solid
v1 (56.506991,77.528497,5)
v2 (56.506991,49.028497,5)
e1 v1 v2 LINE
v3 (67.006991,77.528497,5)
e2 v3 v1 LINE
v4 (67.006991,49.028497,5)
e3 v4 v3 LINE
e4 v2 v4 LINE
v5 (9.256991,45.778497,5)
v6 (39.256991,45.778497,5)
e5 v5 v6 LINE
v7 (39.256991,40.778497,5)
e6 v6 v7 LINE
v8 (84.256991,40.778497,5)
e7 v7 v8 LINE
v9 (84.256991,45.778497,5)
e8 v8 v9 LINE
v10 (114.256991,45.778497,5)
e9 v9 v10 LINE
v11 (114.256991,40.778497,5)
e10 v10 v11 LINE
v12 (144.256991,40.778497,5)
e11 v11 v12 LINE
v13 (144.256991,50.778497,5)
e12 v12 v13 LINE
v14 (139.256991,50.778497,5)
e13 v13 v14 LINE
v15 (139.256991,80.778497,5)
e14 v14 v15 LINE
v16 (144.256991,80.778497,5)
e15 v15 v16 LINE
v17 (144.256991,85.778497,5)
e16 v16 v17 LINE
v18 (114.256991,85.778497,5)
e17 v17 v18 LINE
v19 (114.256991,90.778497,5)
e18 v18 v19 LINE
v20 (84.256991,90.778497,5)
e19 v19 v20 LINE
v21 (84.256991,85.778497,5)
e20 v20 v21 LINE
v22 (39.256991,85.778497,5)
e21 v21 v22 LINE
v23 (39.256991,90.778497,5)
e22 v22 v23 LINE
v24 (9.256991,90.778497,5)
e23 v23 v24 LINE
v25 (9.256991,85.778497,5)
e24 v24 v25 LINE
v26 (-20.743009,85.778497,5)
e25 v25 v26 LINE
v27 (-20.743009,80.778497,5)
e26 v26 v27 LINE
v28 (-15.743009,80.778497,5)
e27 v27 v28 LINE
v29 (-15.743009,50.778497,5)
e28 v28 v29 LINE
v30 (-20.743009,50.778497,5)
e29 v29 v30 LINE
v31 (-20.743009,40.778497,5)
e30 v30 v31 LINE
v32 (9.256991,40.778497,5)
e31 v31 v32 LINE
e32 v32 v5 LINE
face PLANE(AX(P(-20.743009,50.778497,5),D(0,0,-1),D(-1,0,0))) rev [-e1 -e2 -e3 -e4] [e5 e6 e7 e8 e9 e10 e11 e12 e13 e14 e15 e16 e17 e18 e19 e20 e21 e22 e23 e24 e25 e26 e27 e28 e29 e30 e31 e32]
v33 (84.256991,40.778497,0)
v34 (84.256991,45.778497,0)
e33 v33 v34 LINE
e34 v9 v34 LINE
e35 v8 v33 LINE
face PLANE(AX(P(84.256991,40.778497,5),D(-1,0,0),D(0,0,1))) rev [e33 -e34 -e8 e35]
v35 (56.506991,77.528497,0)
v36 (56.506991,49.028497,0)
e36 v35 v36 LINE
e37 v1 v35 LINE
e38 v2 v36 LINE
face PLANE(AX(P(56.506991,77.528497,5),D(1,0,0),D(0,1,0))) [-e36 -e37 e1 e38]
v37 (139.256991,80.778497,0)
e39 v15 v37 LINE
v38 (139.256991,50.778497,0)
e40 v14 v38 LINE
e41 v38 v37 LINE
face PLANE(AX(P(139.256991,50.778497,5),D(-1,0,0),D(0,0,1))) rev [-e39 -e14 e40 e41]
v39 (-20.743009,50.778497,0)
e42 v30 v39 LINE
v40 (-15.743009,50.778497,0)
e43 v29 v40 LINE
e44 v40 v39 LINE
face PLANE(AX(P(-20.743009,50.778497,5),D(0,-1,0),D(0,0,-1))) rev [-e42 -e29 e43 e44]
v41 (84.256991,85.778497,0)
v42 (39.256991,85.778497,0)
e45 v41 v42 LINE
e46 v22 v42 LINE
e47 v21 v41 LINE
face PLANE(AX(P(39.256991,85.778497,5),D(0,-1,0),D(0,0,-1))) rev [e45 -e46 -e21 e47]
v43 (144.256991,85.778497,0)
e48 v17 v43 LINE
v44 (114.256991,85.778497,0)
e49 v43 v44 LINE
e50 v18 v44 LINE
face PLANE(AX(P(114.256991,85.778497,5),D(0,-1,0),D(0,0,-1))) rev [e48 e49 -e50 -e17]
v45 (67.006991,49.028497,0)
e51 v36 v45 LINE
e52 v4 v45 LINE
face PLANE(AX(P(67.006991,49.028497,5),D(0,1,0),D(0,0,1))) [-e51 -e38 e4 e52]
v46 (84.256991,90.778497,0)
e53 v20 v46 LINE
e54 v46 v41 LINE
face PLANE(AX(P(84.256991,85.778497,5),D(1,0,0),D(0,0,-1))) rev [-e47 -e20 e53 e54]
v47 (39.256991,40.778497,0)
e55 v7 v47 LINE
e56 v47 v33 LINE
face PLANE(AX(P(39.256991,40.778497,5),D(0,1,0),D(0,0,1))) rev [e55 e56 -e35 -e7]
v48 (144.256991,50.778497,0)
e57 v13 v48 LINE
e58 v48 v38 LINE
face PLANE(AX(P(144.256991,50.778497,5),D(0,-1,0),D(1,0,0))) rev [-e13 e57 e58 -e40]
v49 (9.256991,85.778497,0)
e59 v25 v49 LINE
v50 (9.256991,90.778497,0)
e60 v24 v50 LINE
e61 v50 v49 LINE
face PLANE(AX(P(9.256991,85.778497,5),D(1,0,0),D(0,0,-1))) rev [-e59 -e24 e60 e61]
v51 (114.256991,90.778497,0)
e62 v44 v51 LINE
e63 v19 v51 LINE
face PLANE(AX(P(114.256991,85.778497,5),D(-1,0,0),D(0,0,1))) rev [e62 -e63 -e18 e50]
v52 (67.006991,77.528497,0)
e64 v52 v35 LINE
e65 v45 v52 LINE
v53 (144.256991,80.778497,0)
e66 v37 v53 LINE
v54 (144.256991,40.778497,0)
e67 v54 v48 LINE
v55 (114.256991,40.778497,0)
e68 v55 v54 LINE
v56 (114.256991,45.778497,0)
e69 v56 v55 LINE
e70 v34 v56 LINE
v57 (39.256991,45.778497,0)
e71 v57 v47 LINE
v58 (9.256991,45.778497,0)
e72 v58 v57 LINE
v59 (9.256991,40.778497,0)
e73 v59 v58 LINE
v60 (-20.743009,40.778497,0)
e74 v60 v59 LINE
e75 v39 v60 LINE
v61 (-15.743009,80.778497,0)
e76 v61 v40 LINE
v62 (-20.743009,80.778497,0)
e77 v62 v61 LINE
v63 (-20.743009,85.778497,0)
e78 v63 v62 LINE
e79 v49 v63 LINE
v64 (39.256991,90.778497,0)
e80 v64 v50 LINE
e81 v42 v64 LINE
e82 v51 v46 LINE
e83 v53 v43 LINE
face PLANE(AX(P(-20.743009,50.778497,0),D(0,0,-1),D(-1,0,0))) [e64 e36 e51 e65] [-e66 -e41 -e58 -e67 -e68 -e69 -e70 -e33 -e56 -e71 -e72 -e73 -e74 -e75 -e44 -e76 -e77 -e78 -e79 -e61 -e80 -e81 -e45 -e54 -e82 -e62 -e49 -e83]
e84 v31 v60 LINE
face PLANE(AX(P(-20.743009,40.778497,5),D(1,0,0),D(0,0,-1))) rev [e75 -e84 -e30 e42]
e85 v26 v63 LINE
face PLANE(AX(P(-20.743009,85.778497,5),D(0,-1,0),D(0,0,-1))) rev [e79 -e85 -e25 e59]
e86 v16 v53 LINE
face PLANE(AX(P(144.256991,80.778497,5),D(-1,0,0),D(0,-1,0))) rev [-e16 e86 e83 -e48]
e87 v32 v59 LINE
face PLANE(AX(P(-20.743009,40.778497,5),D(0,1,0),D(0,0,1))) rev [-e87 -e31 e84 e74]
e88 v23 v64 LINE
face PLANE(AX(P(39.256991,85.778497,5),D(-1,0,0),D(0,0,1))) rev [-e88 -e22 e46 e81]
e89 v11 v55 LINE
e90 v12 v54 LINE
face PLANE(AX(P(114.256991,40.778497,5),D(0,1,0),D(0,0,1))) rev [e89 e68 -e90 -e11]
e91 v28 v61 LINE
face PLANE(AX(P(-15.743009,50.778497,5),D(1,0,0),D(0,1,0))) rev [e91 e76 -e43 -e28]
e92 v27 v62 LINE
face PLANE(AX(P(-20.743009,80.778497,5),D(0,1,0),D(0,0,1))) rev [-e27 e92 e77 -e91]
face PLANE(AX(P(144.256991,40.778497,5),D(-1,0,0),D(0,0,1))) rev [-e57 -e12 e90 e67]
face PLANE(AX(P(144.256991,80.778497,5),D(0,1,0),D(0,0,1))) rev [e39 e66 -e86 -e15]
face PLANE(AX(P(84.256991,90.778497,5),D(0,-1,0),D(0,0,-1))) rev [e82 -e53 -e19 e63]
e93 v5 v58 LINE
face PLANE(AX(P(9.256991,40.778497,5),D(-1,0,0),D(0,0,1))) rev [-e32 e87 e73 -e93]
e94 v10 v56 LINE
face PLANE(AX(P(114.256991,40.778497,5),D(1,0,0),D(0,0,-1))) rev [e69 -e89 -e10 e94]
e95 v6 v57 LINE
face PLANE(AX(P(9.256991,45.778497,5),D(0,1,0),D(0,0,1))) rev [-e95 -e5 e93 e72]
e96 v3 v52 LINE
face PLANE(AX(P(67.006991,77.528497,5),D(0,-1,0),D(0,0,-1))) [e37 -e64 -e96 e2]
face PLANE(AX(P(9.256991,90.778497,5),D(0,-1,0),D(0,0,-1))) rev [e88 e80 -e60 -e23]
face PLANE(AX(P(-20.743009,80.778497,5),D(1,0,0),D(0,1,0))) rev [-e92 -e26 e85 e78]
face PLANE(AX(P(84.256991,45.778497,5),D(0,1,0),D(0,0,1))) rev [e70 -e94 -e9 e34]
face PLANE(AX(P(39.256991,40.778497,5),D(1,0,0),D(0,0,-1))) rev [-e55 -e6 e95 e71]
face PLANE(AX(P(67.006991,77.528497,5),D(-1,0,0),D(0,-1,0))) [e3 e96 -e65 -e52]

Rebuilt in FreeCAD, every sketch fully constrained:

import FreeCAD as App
import Part
import Sketcher
Q = App.Units.Quantity


def add_polygon(sketch, points):
    """Adds a closed chain of lines whose ends are joined by coincident constraints."""
    first, n = sketch.GeometryCount, len(points)
    for a, b in zip(points, points[1:] + points[:1]):
        sketch.addGeometry(Part.LineSegment(App.Vector(*a, 0), App.Vector(*b, 0)), False)
    for i in range(n):
        sketch.addConstraint(Sketcher.Constraint("Coincident", first + i, 2, first + (i + 1) % n, 1))

doc = App.newDocument("Part")
params = doc.addObject("Spreadsheet::Sheet", "Params")
for row, (alias, value) in enumerate([
    ("sketch1_width", "30 mm"),
    ("sketch1_width2", "45 mm"),
    ("sketch1_width3", "5 mm"),
    ("sketch1_height", "10 mm"),
    ("sketch1_width4", "10.5 mm"),
    ("pad1_length", "5 mm"),
], start=1):
    params.set(f"A{row}", alias)
    params.set(f"B{row}", "=" + value)
    params.setAlias(f"B{row}", alias)

body = doc.addObject("PartDesign::Body", "Body")

# Sketch on XY plane
sketch1 = body.newObject("Sketcher::SketchObject", "Sketch")
sketch1.AttachmentSupport = (doc.getObject("XY_Plane"), [""])
sketch1.MapMode = "FlatFace"
add_polygon(sketch1, [(144, 81), (144, 86), (114, 86), (114, 91), (84, 91), (84, 86), (39, 86), (39, 91), (9, 91), (9, 86), (-21, 86), (-21, 81), (-16, 81), (-16, 51), (-21, 51), (-21, 41), (9, 41), (9, 46), (39, 46), (39, 41), (84, 41), (84, 46), (114, 46), (114, 41), (144, 41), (144, 51), (139, 51), (139, 81)])  # lines 0-27
add_polygon(sketch1, [(67, 49), (57, 49), (57, 78), (67, 78)])  # lines 28-31
sketch1.addConstraint([
    Sketcher.Constraint("Vertical", 0),
    Sketcher.Constraint("Horizontal", 1),
    Sketcher.Constraint("Vertical", 2),
    Sketcher.Constraint("Horizontal", 3),
    Sketcher.Constraint("Vertical", 4),
    Sketcher.Constraint("Horizontal", 5),
    Sketcher.Constraint("Vertical", 6),
    Sketcher.Constraint("Horizontal", 7),
    Sketcher.Constraint("Vertical", 8),
    Sketcher.Constraint("Horizontal", 9),
    Sketcher.Constraint("Vertical", 10),
    Sketcher.Constraint("Horizontal", 11),
    Sketcher.Constraint("Vertical", 12),
    Sketcher.Constraint("Horizontal", 13),
    Sketcher.Constraint("Vertical", 14),
    Sketcher.Constraint("Horizontal", 15),
    Sketcher.Constraint("Vertical", 16),
    Sketcher.Constraint("Horizontal", 17),
    Sketcher.Constraint("Vertical", 18),
    Sketcher.Constraint("Horizontal", 19),
    Sketcher.Constraint("Vertical", 20),
    Sketcher.Constraint("Horizontal", 21),
    Sketcher.Constraint("Vertical", 22),
    Sketcher.Constraint("Horizontal", 23),
    Sketcher.Constraint("Vertical", 24),
    Sketcher.Constraint("Horizontal", 25),
    Sketcher.Constraint("Vertical", 26),
    Sketcher.Constraint("Horizontal", 27),
    Sketcher.Constraint("Horizontal", 28),
    Sketcher.Constraint("Vertical", 29),
    Sketcher.Constraint("Horizontal", 30),
    Sketcher.Constraint("Vertical", 31),
    Sketcher.Constraint("Horizontal", 1, 2, 4, 2),
    Sketcher.Constraint("Horizontal", 3, 2, 6, 2),
    Sketcher.Constraint("Horizontal", 5, 2, 8, 2),
    Sketcher.Constraint("Horizontal", 15, 2, 18, 2),
    Sketcher.Constraint("Horizontal", 17, 2, 20, 2),
    Sketcher.Constraint("Horizontal", 19, 2, 22, 2),
    Sketcher.Constraint("Horizontal", 13, 2, 24, 2),
    Sketcher.Constraint("Horizontal", 11, 2, 26, 2),
    Sketcher.Constraint("Vertical", 10, 2, 13, 2),
    Sketcher.Constraint("Vertical", 8, 2, 15, 2),
    Sketcher.Constraint("Vertical", 6, 2, 17, 2),
    Sketcher.Constraint("Vertical", 4, 2, 19, 2),
    Sketcher.Constraint("Vertical", 2, 2, 21, 2),
    Sketcher.Constraint("Vertical", 0, 2, 23, 2),
    Sketcher.Constraint("Equal", 1, 3),
    Sketcher.Constraint("Equal", 3, 7),
    Sketcher.Constraint("Equal", 7, 9),
    Sketcher.Constraint("Equal", 13, 25),
    Sketcher.Constraint("Equal", 27, 0),
    Sketcher.Constraint("Equal", 0, 2),
    Sketcher.Constraint("Equal", 23, 12),
    Sketcher.Constraint("Equal", 10, 16),
    Sketcher.Constraint("DistanceX", 1, 2, 1, 1, Q("30 mm")),
    Sketcher.Constraint("DistanceX", 5, 2, 5, 1, Q("45 mm")),
    Sketcher.Constraint("DistanceX", 11, 1, 11, 2, Q("5 mm")),
    Sketcher.Constraint("DistanceY", 14, 2, 14, 1, Q("10 mm")),
    Sketcher.Constraint("DistanceX", 28, 2, 28, 1, Q("10.5 mm")),
    Sketcher.Constraint("DistanceY", 29, 1, 29, 2, Q("28.5 mm")),
    Sketcher.Constraint("DistanceX", 17, 2, 28, 2, Q("17.25 mm")),
    Sketcher.Constraint("DistanceY", 17, 2, 28, 2, Q("3.25 mm")),
    Sketcher.Constraint("DistanceX", -1, 1, 0, 2, Q("144.256991 mm")),
    Sketcher.Constraint("DistanceY", -1, 1, 0, 2, Q("85.778497 mm")),
])
sketch1.setExpression("Constraints[86]", "Params.sketch1_width")
sketch1.setExpression("Constraints[87]", "Params.sketch1_width2")
sketch1.setExpression("Constraints[88]", "Params.sketch1_width3")
sketch1.setExpression("Constraints[89]", "Params.sketch1_height")
sketch1.setExpression("Constraints[90]", "Params.sketch1_width4")
pad1 = body.newObject("PartDesign::Pad", "Pad")
pad1.Profile = sketch1
pad1.setExpression("Length", "Params.pad1_length")

doc.recompute()
